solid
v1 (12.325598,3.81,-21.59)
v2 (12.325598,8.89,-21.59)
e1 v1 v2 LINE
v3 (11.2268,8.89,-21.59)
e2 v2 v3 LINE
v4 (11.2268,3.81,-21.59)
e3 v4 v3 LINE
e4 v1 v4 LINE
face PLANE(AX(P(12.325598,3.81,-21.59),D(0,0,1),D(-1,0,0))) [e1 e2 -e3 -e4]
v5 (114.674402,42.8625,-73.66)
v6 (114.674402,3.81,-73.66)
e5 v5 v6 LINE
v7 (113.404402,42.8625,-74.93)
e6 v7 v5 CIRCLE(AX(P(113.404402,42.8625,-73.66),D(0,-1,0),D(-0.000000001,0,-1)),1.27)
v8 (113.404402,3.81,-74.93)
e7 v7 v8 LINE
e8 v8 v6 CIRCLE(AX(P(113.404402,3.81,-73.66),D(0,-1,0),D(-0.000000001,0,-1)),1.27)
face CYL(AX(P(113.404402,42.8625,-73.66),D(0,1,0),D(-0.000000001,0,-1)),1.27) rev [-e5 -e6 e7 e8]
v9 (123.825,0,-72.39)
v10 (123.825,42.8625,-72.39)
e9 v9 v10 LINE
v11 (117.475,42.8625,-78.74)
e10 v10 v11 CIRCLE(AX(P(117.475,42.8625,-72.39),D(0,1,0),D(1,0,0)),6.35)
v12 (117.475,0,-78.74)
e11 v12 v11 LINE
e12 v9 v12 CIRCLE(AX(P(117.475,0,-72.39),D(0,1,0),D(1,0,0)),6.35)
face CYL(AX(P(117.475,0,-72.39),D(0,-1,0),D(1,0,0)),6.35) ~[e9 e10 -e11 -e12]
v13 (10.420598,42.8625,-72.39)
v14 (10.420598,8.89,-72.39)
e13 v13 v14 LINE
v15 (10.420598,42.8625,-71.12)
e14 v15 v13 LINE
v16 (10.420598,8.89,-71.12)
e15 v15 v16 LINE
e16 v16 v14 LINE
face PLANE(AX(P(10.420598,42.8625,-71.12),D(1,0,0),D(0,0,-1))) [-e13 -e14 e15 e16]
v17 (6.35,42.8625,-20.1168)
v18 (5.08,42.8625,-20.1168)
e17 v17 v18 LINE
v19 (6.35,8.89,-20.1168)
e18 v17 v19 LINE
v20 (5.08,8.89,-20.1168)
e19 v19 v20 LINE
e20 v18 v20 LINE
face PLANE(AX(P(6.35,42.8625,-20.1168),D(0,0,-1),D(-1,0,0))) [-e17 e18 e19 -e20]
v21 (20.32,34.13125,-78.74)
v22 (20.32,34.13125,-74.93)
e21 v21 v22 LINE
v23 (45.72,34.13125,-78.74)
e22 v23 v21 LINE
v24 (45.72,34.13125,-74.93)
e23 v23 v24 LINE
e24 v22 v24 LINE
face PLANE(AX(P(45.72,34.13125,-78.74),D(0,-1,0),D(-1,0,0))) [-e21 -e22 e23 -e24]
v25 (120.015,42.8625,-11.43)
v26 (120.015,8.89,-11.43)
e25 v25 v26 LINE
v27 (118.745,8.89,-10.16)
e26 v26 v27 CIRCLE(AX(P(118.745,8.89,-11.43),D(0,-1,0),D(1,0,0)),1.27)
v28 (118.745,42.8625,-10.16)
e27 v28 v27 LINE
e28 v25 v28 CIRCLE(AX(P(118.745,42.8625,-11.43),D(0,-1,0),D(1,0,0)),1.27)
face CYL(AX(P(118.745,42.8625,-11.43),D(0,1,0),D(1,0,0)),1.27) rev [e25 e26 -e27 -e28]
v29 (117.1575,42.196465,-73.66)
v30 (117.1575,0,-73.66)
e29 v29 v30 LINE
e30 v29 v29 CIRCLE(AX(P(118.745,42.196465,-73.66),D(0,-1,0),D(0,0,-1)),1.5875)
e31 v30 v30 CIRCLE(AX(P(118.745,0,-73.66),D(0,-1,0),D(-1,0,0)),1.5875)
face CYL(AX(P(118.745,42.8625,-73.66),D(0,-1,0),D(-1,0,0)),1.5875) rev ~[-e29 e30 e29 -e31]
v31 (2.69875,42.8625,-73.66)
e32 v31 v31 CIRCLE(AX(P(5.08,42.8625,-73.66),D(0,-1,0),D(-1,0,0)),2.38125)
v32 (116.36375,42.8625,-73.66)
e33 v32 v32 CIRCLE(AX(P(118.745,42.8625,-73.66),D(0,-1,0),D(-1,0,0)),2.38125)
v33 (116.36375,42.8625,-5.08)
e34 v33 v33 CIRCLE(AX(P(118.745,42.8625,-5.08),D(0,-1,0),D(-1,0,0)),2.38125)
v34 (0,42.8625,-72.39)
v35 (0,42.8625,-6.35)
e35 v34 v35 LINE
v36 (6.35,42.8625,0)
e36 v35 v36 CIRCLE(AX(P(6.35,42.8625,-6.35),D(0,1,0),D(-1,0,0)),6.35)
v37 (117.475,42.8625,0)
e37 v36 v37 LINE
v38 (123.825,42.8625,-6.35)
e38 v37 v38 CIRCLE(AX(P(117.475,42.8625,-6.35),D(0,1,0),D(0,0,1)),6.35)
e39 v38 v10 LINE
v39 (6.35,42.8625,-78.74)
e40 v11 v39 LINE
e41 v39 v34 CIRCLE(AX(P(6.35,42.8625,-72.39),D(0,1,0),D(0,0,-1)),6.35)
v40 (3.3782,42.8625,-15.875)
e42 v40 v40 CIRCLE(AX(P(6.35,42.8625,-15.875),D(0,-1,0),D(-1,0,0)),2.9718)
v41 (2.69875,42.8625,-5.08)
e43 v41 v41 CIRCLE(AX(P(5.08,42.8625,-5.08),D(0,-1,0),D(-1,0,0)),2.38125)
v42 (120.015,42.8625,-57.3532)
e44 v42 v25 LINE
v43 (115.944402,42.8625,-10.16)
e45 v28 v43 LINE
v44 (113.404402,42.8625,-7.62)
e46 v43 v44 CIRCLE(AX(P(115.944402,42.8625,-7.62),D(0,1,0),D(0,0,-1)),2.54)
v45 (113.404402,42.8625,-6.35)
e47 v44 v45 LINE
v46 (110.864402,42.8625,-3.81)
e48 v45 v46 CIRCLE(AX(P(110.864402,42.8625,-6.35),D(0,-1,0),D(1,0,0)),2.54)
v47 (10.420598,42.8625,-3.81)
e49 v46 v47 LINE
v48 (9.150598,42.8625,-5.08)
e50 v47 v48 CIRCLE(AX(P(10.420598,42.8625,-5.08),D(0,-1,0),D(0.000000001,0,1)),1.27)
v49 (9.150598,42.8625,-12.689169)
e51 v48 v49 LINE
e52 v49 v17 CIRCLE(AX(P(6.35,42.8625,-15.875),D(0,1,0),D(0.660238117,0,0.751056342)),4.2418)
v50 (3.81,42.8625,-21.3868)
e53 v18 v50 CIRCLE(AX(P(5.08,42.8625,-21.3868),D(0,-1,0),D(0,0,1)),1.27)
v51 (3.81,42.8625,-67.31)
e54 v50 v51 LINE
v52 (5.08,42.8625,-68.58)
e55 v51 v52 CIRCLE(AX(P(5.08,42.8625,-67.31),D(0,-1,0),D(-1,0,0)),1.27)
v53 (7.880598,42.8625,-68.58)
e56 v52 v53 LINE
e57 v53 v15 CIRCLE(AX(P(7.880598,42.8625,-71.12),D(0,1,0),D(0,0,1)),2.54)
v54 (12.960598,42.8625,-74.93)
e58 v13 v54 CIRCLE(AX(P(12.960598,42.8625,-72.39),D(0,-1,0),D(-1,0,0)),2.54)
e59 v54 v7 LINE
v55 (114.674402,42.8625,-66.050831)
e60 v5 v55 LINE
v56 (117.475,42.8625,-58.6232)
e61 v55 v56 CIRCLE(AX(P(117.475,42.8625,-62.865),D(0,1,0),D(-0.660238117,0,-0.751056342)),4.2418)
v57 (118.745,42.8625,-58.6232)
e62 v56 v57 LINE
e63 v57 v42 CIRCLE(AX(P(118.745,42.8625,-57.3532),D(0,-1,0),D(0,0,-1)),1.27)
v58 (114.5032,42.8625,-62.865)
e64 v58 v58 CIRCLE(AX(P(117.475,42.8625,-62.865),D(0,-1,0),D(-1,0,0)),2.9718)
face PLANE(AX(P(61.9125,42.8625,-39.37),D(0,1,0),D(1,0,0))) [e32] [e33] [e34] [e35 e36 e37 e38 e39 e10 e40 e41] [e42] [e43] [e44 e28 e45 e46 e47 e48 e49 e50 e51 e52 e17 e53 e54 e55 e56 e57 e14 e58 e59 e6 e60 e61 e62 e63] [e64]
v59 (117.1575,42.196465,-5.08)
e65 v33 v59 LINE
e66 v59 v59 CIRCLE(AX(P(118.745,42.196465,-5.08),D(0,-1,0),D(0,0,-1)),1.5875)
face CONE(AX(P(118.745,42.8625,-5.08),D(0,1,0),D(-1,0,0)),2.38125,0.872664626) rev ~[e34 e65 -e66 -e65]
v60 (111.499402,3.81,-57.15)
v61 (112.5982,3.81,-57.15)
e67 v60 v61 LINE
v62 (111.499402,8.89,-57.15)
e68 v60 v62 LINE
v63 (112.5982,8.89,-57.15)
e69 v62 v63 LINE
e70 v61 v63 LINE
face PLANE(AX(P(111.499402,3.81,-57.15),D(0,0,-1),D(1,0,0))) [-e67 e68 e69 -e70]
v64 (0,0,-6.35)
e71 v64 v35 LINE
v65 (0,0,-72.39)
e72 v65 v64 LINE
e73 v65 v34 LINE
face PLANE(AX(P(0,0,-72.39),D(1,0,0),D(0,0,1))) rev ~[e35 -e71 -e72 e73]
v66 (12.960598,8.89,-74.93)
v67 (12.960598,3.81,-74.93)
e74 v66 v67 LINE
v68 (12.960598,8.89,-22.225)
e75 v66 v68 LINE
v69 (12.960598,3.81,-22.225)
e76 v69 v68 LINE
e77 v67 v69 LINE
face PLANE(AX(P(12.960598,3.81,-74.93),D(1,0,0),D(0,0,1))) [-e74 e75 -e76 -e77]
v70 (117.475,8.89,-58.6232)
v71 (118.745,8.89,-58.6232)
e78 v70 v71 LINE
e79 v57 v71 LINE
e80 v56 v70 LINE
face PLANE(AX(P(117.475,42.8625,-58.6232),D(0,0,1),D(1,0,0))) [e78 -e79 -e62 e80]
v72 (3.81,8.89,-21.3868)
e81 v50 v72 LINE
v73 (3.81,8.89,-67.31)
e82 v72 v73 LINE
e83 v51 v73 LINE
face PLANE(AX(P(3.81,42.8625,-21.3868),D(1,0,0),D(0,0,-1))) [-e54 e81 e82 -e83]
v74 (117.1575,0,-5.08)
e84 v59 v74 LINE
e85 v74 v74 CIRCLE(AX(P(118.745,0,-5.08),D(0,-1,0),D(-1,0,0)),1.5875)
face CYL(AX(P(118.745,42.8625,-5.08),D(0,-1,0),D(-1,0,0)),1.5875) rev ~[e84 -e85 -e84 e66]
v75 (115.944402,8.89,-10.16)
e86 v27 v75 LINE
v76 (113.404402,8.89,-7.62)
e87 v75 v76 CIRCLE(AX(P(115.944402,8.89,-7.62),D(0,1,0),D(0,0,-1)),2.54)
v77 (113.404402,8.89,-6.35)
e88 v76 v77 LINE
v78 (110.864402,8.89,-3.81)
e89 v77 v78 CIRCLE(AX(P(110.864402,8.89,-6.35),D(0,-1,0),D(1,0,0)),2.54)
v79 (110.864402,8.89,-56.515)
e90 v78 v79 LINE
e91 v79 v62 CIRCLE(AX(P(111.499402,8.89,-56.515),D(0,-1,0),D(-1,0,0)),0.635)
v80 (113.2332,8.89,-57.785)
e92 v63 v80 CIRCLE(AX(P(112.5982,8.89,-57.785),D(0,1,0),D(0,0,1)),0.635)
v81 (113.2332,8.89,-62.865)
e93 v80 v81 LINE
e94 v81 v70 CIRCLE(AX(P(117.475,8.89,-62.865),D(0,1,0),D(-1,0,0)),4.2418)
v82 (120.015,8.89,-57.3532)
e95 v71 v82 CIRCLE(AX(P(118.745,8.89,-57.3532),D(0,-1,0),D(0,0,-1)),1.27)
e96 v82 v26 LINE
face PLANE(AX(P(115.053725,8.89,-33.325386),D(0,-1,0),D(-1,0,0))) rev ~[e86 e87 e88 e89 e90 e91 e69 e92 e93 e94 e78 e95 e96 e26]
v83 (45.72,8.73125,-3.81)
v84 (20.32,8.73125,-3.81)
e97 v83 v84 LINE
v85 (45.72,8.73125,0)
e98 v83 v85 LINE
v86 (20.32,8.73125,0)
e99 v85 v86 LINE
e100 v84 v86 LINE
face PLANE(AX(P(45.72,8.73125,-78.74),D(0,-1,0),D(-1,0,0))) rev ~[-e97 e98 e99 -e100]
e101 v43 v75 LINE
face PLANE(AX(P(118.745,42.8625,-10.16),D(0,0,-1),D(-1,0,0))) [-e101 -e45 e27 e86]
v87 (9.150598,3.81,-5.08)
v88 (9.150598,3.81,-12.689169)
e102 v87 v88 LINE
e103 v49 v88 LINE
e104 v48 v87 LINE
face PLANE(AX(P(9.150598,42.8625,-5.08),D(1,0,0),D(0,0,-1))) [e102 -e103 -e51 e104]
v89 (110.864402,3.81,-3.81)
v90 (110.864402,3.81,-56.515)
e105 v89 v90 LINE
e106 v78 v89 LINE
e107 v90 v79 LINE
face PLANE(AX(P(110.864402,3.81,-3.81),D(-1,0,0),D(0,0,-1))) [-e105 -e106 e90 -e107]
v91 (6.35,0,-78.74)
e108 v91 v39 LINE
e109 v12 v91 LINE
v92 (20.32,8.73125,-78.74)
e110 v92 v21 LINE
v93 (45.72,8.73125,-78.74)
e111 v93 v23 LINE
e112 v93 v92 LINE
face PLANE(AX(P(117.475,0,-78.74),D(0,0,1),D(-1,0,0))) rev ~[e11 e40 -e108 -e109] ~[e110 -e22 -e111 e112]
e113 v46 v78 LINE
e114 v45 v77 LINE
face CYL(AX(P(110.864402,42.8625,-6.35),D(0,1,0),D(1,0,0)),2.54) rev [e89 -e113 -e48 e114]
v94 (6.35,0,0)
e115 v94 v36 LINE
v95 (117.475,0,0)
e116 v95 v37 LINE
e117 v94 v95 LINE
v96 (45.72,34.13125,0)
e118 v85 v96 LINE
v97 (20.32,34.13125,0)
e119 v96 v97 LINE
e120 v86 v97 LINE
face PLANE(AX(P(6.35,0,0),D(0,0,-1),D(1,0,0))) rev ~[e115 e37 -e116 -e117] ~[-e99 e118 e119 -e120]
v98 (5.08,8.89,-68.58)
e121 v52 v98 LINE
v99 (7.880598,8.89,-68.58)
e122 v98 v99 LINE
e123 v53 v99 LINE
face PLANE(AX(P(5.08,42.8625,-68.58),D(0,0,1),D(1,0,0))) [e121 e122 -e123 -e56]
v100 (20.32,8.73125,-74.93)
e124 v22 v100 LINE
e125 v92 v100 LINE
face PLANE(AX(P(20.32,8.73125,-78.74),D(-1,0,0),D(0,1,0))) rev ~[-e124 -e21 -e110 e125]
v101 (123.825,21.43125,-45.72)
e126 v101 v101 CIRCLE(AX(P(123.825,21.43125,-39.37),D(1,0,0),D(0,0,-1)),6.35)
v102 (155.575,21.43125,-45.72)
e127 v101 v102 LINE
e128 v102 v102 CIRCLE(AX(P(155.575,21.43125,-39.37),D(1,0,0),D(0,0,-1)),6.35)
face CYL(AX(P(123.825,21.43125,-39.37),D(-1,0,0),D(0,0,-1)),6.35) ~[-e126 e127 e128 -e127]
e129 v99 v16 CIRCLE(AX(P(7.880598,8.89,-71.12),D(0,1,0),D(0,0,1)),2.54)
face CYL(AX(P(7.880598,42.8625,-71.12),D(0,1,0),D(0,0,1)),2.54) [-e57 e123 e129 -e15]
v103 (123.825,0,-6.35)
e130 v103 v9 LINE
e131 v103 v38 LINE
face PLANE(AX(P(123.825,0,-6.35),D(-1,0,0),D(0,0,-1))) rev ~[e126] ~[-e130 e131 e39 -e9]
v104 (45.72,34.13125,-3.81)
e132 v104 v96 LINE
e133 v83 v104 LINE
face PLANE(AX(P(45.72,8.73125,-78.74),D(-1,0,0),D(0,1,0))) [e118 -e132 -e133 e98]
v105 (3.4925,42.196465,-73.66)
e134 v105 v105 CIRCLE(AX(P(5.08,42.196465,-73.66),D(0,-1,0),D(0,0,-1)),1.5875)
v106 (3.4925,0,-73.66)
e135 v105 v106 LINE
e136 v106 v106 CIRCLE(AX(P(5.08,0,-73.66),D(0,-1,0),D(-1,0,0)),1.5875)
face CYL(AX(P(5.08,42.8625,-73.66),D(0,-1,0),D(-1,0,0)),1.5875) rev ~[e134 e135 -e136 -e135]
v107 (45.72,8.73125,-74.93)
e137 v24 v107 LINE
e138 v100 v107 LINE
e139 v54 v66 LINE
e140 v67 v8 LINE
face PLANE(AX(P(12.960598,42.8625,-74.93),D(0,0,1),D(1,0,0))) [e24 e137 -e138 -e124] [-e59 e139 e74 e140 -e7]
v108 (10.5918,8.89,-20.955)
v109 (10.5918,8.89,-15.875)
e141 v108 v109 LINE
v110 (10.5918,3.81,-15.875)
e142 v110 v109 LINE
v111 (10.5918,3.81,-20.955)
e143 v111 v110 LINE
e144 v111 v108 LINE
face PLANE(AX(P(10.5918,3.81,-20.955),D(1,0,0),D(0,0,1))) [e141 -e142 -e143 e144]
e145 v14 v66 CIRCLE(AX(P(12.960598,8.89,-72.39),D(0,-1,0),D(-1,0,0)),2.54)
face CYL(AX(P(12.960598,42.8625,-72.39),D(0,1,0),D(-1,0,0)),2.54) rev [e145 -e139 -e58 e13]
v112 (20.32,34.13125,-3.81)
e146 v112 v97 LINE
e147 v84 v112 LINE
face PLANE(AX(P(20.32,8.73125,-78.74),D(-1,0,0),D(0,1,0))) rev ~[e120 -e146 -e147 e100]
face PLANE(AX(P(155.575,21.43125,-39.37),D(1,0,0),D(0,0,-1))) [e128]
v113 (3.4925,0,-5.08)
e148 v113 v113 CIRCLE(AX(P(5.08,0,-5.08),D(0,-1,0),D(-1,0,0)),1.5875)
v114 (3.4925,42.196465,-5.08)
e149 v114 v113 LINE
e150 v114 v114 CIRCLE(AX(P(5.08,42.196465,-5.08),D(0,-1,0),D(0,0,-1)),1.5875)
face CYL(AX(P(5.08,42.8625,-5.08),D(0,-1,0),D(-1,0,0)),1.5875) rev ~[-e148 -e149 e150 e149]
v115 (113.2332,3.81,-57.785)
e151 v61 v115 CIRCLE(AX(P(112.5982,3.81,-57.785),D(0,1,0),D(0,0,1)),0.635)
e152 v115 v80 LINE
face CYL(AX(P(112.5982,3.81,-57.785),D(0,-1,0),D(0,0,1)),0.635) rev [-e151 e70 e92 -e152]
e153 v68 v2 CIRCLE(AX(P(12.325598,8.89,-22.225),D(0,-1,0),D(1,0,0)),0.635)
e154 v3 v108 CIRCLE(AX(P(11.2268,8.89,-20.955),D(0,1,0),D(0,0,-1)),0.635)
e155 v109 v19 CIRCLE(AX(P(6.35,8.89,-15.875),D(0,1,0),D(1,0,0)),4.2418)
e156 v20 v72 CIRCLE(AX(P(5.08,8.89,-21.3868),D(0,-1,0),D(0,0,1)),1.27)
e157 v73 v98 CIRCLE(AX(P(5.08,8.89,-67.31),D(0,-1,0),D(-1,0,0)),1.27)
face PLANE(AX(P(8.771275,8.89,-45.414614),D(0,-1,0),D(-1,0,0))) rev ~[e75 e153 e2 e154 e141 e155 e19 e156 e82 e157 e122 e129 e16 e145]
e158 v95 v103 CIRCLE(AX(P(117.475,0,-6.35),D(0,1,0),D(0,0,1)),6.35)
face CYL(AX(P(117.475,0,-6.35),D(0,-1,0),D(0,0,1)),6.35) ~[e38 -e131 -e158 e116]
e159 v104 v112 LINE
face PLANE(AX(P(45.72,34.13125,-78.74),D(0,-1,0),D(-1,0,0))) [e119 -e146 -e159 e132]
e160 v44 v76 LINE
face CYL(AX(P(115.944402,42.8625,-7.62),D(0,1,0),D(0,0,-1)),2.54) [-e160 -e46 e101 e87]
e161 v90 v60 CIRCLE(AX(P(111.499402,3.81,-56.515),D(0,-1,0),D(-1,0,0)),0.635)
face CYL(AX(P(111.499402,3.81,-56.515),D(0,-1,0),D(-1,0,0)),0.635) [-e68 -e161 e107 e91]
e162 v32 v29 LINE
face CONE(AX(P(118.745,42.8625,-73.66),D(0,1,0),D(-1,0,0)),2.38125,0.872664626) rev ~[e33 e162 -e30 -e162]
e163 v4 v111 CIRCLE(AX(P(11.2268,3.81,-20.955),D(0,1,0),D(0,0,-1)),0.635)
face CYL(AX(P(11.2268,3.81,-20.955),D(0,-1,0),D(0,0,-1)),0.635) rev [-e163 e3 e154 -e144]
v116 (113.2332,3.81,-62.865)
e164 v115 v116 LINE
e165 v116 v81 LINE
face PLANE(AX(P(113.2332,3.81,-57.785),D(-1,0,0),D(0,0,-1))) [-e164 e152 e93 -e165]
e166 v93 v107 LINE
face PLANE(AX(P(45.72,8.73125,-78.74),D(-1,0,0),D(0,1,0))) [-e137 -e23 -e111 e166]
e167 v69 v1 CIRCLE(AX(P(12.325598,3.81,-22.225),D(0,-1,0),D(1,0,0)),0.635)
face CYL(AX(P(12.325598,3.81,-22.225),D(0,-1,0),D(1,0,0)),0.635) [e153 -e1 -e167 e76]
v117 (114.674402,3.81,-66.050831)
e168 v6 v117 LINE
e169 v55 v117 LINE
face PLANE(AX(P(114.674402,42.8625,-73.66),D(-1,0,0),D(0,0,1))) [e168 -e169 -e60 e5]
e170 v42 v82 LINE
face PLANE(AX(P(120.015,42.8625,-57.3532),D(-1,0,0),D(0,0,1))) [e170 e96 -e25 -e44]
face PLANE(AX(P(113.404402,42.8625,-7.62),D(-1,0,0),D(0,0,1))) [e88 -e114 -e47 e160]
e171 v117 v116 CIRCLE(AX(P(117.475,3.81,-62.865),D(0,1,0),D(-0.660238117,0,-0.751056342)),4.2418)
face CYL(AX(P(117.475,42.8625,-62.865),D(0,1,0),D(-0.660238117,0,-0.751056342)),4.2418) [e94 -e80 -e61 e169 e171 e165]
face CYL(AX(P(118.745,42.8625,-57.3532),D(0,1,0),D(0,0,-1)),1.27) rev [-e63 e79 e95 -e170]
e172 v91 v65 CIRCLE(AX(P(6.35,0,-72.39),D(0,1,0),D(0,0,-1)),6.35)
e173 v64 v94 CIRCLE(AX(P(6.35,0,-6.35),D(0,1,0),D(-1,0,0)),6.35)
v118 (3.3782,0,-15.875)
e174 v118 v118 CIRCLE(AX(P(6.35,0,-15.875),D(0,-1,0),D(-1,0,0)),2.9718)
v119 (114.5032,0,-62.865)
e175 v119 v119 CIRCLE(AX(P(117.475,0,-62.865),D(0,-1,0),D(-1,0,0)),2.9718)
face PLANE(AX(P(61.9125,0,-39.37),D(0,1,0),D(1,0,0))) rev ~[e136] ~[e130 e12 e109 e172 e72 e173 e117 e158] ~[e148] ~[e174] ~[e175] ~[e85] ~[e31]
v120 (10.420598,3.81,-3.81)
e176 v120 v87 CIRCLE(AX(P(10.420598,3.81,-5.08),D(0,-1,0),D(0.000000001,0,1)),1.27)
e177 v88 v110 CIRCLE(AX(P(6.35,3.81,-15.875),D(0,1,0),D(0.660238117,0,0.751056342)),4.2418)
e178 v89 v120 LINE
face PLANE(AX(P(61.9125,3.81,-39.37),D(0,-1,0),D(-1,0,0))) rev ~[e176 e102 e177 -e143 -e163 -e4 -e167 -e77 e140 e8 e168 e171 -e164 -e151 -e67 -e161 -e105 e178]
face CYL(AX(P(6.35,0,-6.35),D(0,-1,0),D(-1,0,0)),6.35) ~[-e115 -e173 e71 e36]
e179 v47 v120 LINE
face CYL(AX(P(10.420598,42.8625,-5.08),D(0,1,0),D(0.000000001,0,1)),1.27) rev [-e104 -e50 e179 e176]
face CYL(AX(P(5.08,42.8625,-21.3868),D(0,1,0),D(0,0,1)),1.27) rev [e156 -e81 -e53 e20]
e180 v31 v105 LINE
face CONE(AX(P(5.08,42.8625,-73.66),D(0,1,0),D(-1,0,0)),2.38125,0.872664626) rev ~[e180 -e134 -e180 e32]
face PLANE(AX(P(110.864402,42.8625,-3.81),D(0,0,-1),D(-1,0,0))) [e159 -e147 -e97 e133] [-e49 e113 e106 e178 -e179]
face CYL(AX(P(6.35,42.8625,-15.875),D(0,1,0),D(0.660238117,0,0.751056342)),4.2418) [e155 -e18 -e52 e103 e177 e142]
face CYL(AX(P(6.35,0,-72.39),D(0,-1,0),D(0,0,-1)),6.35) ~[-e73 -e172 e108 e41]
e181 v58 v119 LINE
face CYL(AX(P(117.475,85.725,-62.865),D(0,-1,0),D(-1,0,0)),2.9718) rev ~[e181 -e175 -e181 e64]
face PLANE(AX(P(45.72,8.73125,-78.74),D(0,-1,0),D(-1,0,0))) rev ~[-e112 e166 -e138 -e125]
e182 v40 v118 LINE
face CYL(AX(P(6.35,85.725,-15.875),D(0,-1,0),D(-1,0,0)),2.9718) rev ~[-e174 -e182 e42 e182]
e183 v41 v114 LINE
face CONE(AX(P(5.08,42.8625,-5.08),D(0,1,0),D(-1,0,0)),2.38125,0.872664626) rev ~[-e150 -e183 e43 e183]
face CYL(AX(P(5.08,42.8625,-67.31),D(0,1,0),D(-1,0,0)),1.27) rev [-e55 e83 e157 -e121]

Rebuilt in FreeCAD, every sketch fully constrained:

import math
import FreeCAD as App
import Part
import Sketcher
from FreeCAD import Vector
Q = App.Units.Quantity


def add_polygon(sketch, points):
    """Adds a closed chain of lines whose ends are joined by coincident constraints."""
    first, n = sketch.GeometryCount, len(points)
    for a, b in zip(points, points[1:] + points[:1]):
        sketch.addGeometry(Part.LineSegment(App.Vector(*a, 0), App.Vector(*b, 0)), False)
    for i in range(n):
        sketch.addConstraint(Sketcher.Constraint("Coincident", first + i, 2, first + (i + 1) % n, 1))

doc = App.newDocument("Part")
body = doc.addObject("PartDesign::Body", "Body")

# Sketch on XZ plane
sketch1 = doc.addObject("Sketcher::SketchObject", "Sketch")
body.addObject(sketch1)
sketch1.AttachmentSupport = (doc.XZ_Plane, [""])
sketch1.MapMode = "FlatFace"
sketch1.addGeometry([
    Part.LineSegment(Vector(6, 0, 0), Vector(117, 0, 0)),  # 0
    Part.ArcOfCircle(Part.Circle(Vector(117, -6, 0), Vector(0, 0, 1), 6), math.radians(0), math.radians(90)),  # 1
    Part.LineSegment(Vector(124, -6, 0), Vector(124, -72, 0)),  # 2
    Part.ArcOfCircle(Part.Circle(Vector(117, -72, 0), Vector(0, 0, 1), 6), math.radians(-90), math.radians(0)),  # 3
    Part.LineSegment(Vector(117, -79, 0), Vector(6, -79, 0)),  # 4
    Part.ArcOfCircle(Part.Circle(Vector(6, -72, 0), Vector(0, 0, 1), 6), math.radians(180), math.radians(270)),  # 5
    Part.LineSegment(Vector(0, -72, 0), Vector(0, -6, 0)),  # 6
    Part.ArcOfCircle(Part.Circle(Vector(6, -6, 0), Vector(0, 0, 1), 6), math.radians(90), math.radians(180)),  # 7
], False)
sketch1.addConstraint([
    Sketcher.Constraint("Tangent", 0, 2, 1, 2),
    Sketcher.Constraint("Tangent", 1, 1, 2, 1),
    Sketcher.Constraint("Tangent", 2, 2, 3, 2),
    Sketcher.Constraint("Tangent", 3, 1, 4, 1),
    Sketcher.Constraint("Tangent", 4, 2, 5, 2),
    Sketcher.Constraint("Tangent", 5, 1, 6, 1),
    Sketcher.Constraint("Tangent", 6, 2, 7, 2),
    Sketcher.Constraint("Tangent", 7, 1, 0, 1),
    Sketcher.Constraint("Horizontal", 0),
    Sketcher.Constraint("Vertical", 2),
    Sketcher.Constraint("Horizontal", 4),
    Sketcher.Constraint("Vertical", 6),
    Sketcher.Constraint("Equal", 1, 3),
    Sketcher.Constraint("Equal", 3, 5),
    Sketcher.Constraint("Equal", 5, 7),
    Sketcher.Constraint("PointOnObject", 0, 2, -1),
    Sketcher.Constraint("PointOnObject", 5, 1, -2),
    Sketcher.Constraint("Radius", 1, Q("0.25 in")),
    Sketcher.Constraint("DistanceY", 2, 2, 2, 1, Q("2.6 in")),
    Sketcher.Constraint("DistanceX", 0, 1, 0, 2, Q("4.375 in")),
])
pad1 = doc.addObject("PartDesign::Pad", "Pad")
body.addObject(pad1)
pad1.Profile = sketch1
pad1.Length = Q("1.6875 in")
pad1.Reversed = True

# Sketch on XZ plane
sketch2 = doc.addObject("Sketcher::SketchObject", "Sketch001")
body.addObject(sketch2)
sketch2.AttachmentSupport = (doc.XZ_Plane, [""])
sketch2.MapMode = "FlatFace"
sketch2.AttachmentOffset = App.Placement(Vector(0, 0, -1.6875 * 25.4), App.Rotation())
sketch2.addGeometry([
    Part.Circle(Vector(5.1, -5.1, 0), Vector(0, 0, 1), 1.6),
    Part.Circle(Vector(5.1, -73.7, 0), Vector(0, 0, 1), 1.6),
    Part.Circle(Vector(118.7, -73.7, 0), Vector(0, 0, 1), 1.6),
    Part.Circle(Vector(118.7, -5.1, 0), Vector(0, 0, 1), 1.6),
], False)
sketch2.addConstraint([
    Sketcher.Constraint("Equal", 0, 1),
    Sketcher.Constraint("Equal", 1, 2),
    Sketcher.Constraint("Equal", 2, 3),
    Sketcher.Constraint("Horizontal", 1, 3, 2, 3),
    Sketcher.Constraint("Horizontal", 0, 3, 3, 3),
    Sketcher.Constraint("Vertical", 0, 3, 1, 3),
    Sketcher.Constraint("Vertical", 2, 3, 3, 3),
    Sketcher.Constraint("Diameter", 0, Q("0.125 in")),
    Sketcher.Constraint("DistanceX", -1, 1, 0, 3, Q("0.2 in")),
    Sketcher.Constraint("DistanceY", 0, 3, -1, 1, Q("0.2 in")),
    Sketcher.Constraint("DistanceY", 1, 3, -1, 1, Q("2.9 in")),
    Sketcher.Constraint("DistanceX", -1, 1, 2, 3, Q("4.675 in")),
])
doc.recompute()
hole = doc.addObject("PartDesign::Hole", "Hole")
body.addObject(hole)
hole.Profile = sketch2
hole.ThreadType = "None"
hole.Diameter = Q("0.125 in")
hole.DepthType = "ThroughAll"
hole.HoleCutType = "Countersink"
hole.HoleCutDiameter = Q("0.1875 in")
hole.HoleCutCountersinkAngle = 100
hole.Reversed = True

# Sketch on XZ plane
sketch3 = doc.addObject("Sketcher::SketchObject", "Sketch002")
body.addObject(sketch3)
sketch3.AttachmentSupport = (doc.XZ_Plane, [""])
sketch3.MapMode = "FlatFace"
sketch3.AttachmentOffset = App.Placement(Vector(0, 0, -1.6875 * 25.4), App.Rotation())
sketch3.addGeometry([
    Part.Circle(Vector(6.3, -15.9, 0), Vector(0, 0, 1), 3),
    Part.Circle(Vector(117.5, -62.9, 0), Vector(0, 0, 1), 3),
], False)
sketch3.addConstraint([
    Sketcher.Constraint("Equal", 0, 1),
    Sketcher.Constraint("Diameter", 0, Q("0.234 in")),
    Sketcher.Constraint("DistanceX", -1, 1, 0, 3, Q("0.25 in")),
    Sketcher.Constraint("DistanceY", 1, 3, 0, 3, Q("1.85 in")),
    Sketcher.Constraint("DistanceY", 0, 3, -1, 1, Q("0.625 in")),
    Sketcher.Constraint("DistanceX", -1, 1, 1, 3, Q("4.625 in")),
])
doc.recompute()
hole2 = doc.addObject("PartDesign::Hole", "Hole001")
body.addObject(hole2)
hole2.Profile = sketch3
hole2.ThreadType = "None"
hole2.Diameter = Q("0.234 in")
hole2.DepthType = "Dimension"
hole2.Depth = Q("1.6875 in")
hole2.DrillPoint = "Flat"
hole2.Reversed = True

# Sketch on XZ plane
sketch4 = doc.addObject("Sketcher::SketchObject", "Sketch003")
body.addObject(sketch4)
sketch4.AttachmentSupport = (doc.XZ_Plane, [""])
sketch4.MapMode = "FlatFace"
sketch4.AttachmentOffset = App.Placement(Vector(0, 0, -1.6875 * 25.4), App.Rotation())
sketch4.addGeometry([
    Part.LineSegment(Vector(7.9, -68.6, 0), Vector(5.1, -68.6, 0)),  # 0
    Part.ArcOfCircle(Part.Circle(Vector(5.1, -67.3, 0), Vector(0, 0, 1), 1.3), math.radians(180), math.radians(270)),  # 1
    Part.LineSegment(Vector(3.8, -67.3, 0), Vector(3.8, -21.4, 0)),  # 2
    Part.ArcOfCircle(Part.Circle(Vector(5.1, -21.4, 0), Vector(0, 0, 1), 1.3), math.radians(90), math.radians(180)),  # 3
    Part.LineSegment(Vector(5.1, -20.1, 0), Vector(6.3, -20.1, 0)),  # 4
    Part.ArcOfCircle(Part.Circle(Vector(6.3, -15.9, 0), Vector(0, 0, 1), 4.2), math.radians(-90), math.radians(49)),  # 5
    Part.LineSegment(Vector(9.2, -12.7, 0), Vector(9.2, -5.1, 0)),  # 6
    Part.ArcOfCircle(Part.Circle(Vector(10.4, -5.1, 0), Vector(0, 0, 1), 1.3), math.radians(90), math.radians(180)),  # 7
    Part.LineSegment(Vector(10.4, -3.8, 0), Vector(110.9, -3.8, 0)),  # 8
    Part.ArcOfCircle(Part.Circle(Vector(110.9, -6.3, 0), Vector(0, 0, 1), 2.5), math.radians(0), math.radians(90)),  # 9
    Part.LineSegment(Vector(113.4, -6.3, 0), Vector(113.4, -7.6, 0)),  # 10
    Part.ArcOfCircle(Part.Circle(Vector(115.9, -7.6, 0), Vector(0, 0, 1), 2.5), math.radians(-180), math.radians(-90)),  # 11
    Part.LineSegment(Vector(115.9, -10.2, 0), Vector(118.7, -10.2, 0)),  # 12
    Part.ArcOfCircle(Part.Circle(Vector(118.7, -11.4, 0), Vector(0, 0, 1), 1.3), math.radians(0), math.radians(90)),  # 13
    Part.LineSegment(Vector(120, -11.4, 0), Vector(120, -57.4, 0)),  # 14
    Part.ArcOfCircle(Part.Circle(Vector(118.7, -57.4, 0), Vector(0, 0, 1), 1.3), math.radians(-90), math.radians(0)),  # 15
    Part.LineSegment(Vector(118.7, -58.6, 0), Vector(117.5, -58.6, 0)),  # 16
    Part.ArcOfCircle(Part.Circle(Vector(117.5, -62.9, 0), Vector(0, 0, 1), 4.2), math.radians(90), math.radians(229)),  # 17
    Part.LineSegment(Vector(114.7, -66.1, 0), Vector(114.7, -73.7, 0)),  # 18
    Part.ArcOfCircle(Part.Circle(Vector(113.4, -73.7, 0), Vector(0, 0, 1), 1.3), math.radians(-90), math.radians(0)),  # 19
    Part.LineSegment(Vector(113.4, -74.9, 0), Vector(13, -74.9, 0)),  # 20
    Part.ArcOfCircle(Part.Circle(Vector(13, -72.4, 0), Vector(0, 0, 1), 2.5), math.radians(180), math.radians(270)),  # 21
    Part.LineSegment(Vector(10.4, -72.4, 0), Vector(10.4, -71.1, 0)),  # 22
    Part.ArcOfCircle(Part.Circle(Vector(7.9, -71.1, 0), Vector(0, 0, 1), 2.5), math.radians(0), math.radians(90)),  # 23
], False)
sketch4.addConstraint([
    Sketcher.Constraint("Tangent", 0, 2, 1, 2),
    Sketcher.Constraint("Tangent", 1, 1, 2, 1),
    Sketcher.Constraint("Tangent", 2, 2, 3, 2),
    Sketcher.Constraint("Tangent", 3, 1, 4, 1),
    Sketcher.Constraint("Tangent", 4, 2, 5, 1),
    Sketcher.Constraint("Coincident", 5, 2, 6, 1),
    Sketcher.Constraint("Tangent", 6, 2, 7, 2),
    Sketcher.Constraint("Tangent", 7, 1, 8, 1),
    Sketcher.Constraint("Tangent", 8, 2, 9, 2),
    Sketcher.Constraint("Tangent", 9, 1, 10, 1),
    Sketcher.Constraint("Tangent", 10, 2, 11, 1),
    Sketcher.Constraint("Tangent", 11, 2, 12, 1),
    Sketcher.Constraint("Tangent", 12, 2, 13, 2),
    Sketcher.Constraint("Tangent", 13, 1, 14, 1),
    Sketcher.Constraint("Tangent", 14, 2, 15, 2),
    Sketcher.Constraint("Tangent", 15, 1, 16, 1),
    Sketcher.Constraint("Tangent", 16, 2, 17, 1),
    Sketcher.Constraint("Coincident", 17, 2, 18, 1),
    Sketcher.Constraint("Tangent", 18, 2, 19, 2),
    Sketcher.Constraint("Tangent", 19, 1, 20, 1),
    Sketcher.Constraint("Tangent", 20, 2, 21, 2),
    Sketcher.Constraint("Tangent", 21, 1, 22, 1),
    Sketcher.Constraint("Tangent", 22, 2, 23, 1),
    Sketcher.Constraint("Tangent", 23, 2, 0, 1),
    Sketcher.Constraint("Horizontal", 0),
    Sketcher.Constraint("Vertical", 2),
    Sketcher.Constraint("Horizontal", 4),
    Sketcher.Constraint("Vertical", 6),
    Sketcher.Constraint("Horizontal", 8),
    Sketcher.Constraint("Vertical", 10),
    Sketcher.Constraint("Horizontal", 12),
    Sketcher.Constraint("Vertical", 14),
    Sketcher.Constraint("Horizontal", 16),
    Sketcher.Constraint("Vertical", 18),
    Sketcher.Constraint("Horizontal", 20),
    Sketcher.Constraint("Vertical", 22),
    Sketcher.Constraint("Equal", 1, 3),
    Sketcher.Constraint("Equal", 3, 7),
    Sketcher.Constraint("Equal", 9, 11),
    Sketcher.Constraint("Equal", 7, 13),
    Sketcher.Constraint("Equal", 13, 15),
    Sketcher.Constraint("Equal", 5, 17),
    Sketcher.Constraint("Equal", 15, 19),
    Sketcher.Constraint("Equal", 11, 21),
    Sketcher.Constraint("Equal", 21, 23),
    Sketcher.Constraint("Vertical", 19, 3, 9, 1),
    Sketcher.Constraint("Vertical", 7, 1, 21, 1),
    Sketcher.Constraint("Equal", 0, 12),
    Sketcher.Constraint("Equal", 4, 16),
    Sketcher.Constraint("Equal", 16, 10),
    Sketcher.Constraint("Equal", 2, 14),
    Sketcher.Constraint("Equal", 6, 18),
    Sketcher.Constraint("Radius", 9, Q("0.1 in")),
    Sketcher.Constraint("Radius", 1, Q("0.05 in")),
    Sketcher.Constraint("Radius", 5, Q("0.167 in")),
    Sketcher.Constraint("DistanceX", 4, 1, 4, 2, Q("0.05 in")),
    Sketcher.Constraint("DistanceX", -1, 1, 1, 3, Q("0.2 in")),
    Sketcher.Constraint("DistanceY", 7, 3, -1, 1, Q("0.2 in")),
    Sketcher.Constraint("DistanceY", 19, 3, -1, 1, Q("2.9 in")),
    Sketcher.Constraint("DistanceY", 2, 1, 2, 2, Q("1.808 in")),
    Sketcher.Constraint("DistanceX", -1, 1, 13, 3, Q("4.675 in")),
    Sketcher.Constraint("DistanceX", 0, 2, 0, 1, Q("2.800598 mm")),
])
pocket1 = doc.addObject("PartDesign::Pocket", "Pocket")
body.addObject(pocket1)
pocket1.Profile = sketch4
pocket1.Length = Q("1.5375 in")
pocket1.Reversed = True

# Sketch on XZ plane
sketch5 = doc.addObject("Sketcher::SketchObject", "Sketch004")
body.addObject(sketch5)
sketch5.AttachmentSupport = (doc.XZ_Plane, [""])
sketch5.MapMode = "FlatFace"
sketch5.AttachmentOffset = App.Placement(Vector(0, 0, -0.15 * 25.4), App.Rotation())
sketch5.addGeometry([
    Part.LineSegment(Vector(13, -22.2, 0), Vector(13, -74.9, 0)),  # 0
    Part.ArcOfCircle(Part.Circle(Vector(13, -72.4, 0), Vector(0, 0, 1), 2.5), math.radians(180), math.radians(270)),  # 1
    Part.LineSegment(Vector(10.4, -72.4, 0), Vector(10.4, -71.1, 0)),  # 2
    Part.ArcOfCircle(Part.Circle(Vector(7.9, -71.1, 0), Vector(0, 0, 1), 2.5), math.radians(0), math.radians(90)),  # 3
    Part.LineSegment(Vector(7.9, -68.6, 0), Vector(5.1, -68.6, 0)),  # 4
    Part.ArcOfCircle(Part.Circle(Vector(5.1, -67.3, 0), Vector(0, 0, 1), 1.3), math.radians(180), math.radians(270)),  # 5
    Part.LineSegment(Vector(3.8, -67.3, 0), Vector(3.8, -21.4, 0)),  # 6
    Part.ArcOfCircle(Part.Circle(Vector(5.1, -21.4, 0), Vector(0, 0, 1), 1.3), math.radians(90), math.radians(180)),  # 7
    Part.LineSegment(Vector(5.1, -20.1, 0), Vector(6.3, -20.1, 0)),  # 8
    Part.ArcOfCircle(Part.Circle(Vector(6.3, -15.9, 0), Vector(0, 0, 1), 4.2), math.radians(-90), math.radians(0)),  # 9
    Part.LineSegment(Vector(10.6, -15.9, 0), Vector(10.6, -21, 0)),  # 10
    Part.ArcOfCircle(Part.Circle(Vector(11.2, -21, 0), Vector(0, 0, 1), 0.6), math.radians(180), math.radians(270)),  # 11
    Part.LineSegment(Vector(11.2, -21.6, 0), Vector(12.3, -21.6, 0)),  # 12
    Part.ArcOfCircle(Part.Circle(Vector(12.3, -22.2, 0), Vector(0, 0, 1), 0.6), math.radians(0), math.radians(90)),  # 13
    Part.LineSegment(Vector(110.9, -56.5, 0), Vector(110.9, -3.8, 0)),  # 14
    Part.ArcOfCircle(Part.Circle(Vector(110.9, -6.3, 0), Vector(0, 0, 1), 2.5), math.radians(0), math.radians(90)),  # 15
    Part.LineSegment(Vector(113.4, -6.3, 0), Vector(113.4, -7.6, 0)),  # 16
    Part.ArcOfCircle(Part.Circle(Vector(115.9, -7.6, 0), Vector(0, 0, 1), 2.5), math.radians(-180), math.radians(-90)),  # 17
    Part.LineSegment(Vector(115.9, -10.2, 0), Vector(118.7, -10.2, 0)),  # 18
    Part.ArcOfCircle(Part.Circle(Vector(118.7, -11.4, 0), Vector(0, 0, 1), 1.3), math.radians(0), math.radians(90)),  # 19
    Part.LineSegment(Vector(120, -11.4, 0), Vector(120, -57.4, 0)),  # 20
    Part.ArcOfCircle(Part.Circle(Vector(118.7, -57.4, 0), Vector(0, 0, 1), 1.3), math.radians(-90), math.radians(0)),  # 21
    Part.LineSegment(Vector(118.7, -58.6, 0), Vector(117.5, -58.6, 0)),  # 22
    Part.ArcOfCircle(Part.Circle(Vector(117.5, -62.9, 0), Vector(0, 0, 1), 4.2), math.radians(90), math.radians(180)),  # 23
    Part.LineSegment(Vector(113.2, -62.9, 0), Vector(113.2, -57.8, 0)),  # 24
    Part.ArcOfCircle(Part.Circle(Vector(112.6, -57.8, 0), Vector(0, 0, 1), 0.6), math.radians(0), math.radians(90)),  # 25
    Part.LineSegment(Vector(112.6, -57.1, 0), Vector(111.5, -57.1, 0)),  # 26
    Part.ArcOfCircle(Part.Circle(Vector(111.5, -56.5, 0), Vector(0, 0, 1), 0.6), math.radians(180), math.radians(270)),  # 27
], False)
sketch5.addConstraint([
    Sketcher.Constraint("Coincident", 0, 2, 1, 2),
    Sketcher.Constraint("Tangent", 1, 1, 2, 1),
    Sketcher.Constraint("Tangent", 2, 2, 3, 1),
    Sketcher.Constraint("Tangent", 3, 2, 4, 1),
    Sketcher.Constraint("Tangent", 4, 2, 5, 2),
    Sketcher.Constraint("Tangent", 5, 1, 6, 1),
    Sketcher.Constraint("Tangent", 6, 2, 7, 2),
    Sketcher.Constraint("Tangent", 7, 1, 8, 1),
    Sketcher.Constraint("Tangent", 8, 2, 9, 1),
    Sketcher.Constraint("Tangent", 9, 2, 10, 1),
    Sketcher.Constraint("Tangent", 10, 2, 11, 1),
    Sketcher.Constraint("Tangent", 11, 2, 12, 1),
    Sketcher.Constraint("Tangent", 12, 2, 13, 2),
    Sketcher.Constraint("Tangent", 13, 1, 0, 1),
    Sketcher.Constraint("Coincident", 14, 2, 15, 2),
    Sketcher.Constraint("Tangent", 15, 1, 16, 1),
    Sketcher.Constraint("Tangent", 16, 2, 17, 1),
    Sketcher.Constraint("Tangent", 17, 2, 18, 1),
    Sketcher.Constraint("Tangent", 18, 2, 19, 2),
    Sketcher.Constraint("Tangent", 19, 1, 20, 1),
    Sketcher.Constraint("Tangent", 20, 2, 21, 2),
    Sketcher.Constraint("Tangent", 21, 1, 22, 1),
    Sketcher.Constraint("Tangent", 22, 2, 23, 1),
    Sketcher.Constraint("Tangent", 23, 2, 24, 1),
    Sketcher.Constraint("Tangent", 24, 2, 25, 1),
    Sketcher.Constraint("Tangent", 25, 2, 26, 1),
    Sketcher.Constraint("Tangent", 26, 2, 27, 2),
    Sketcher.Constraint("Tangent", 27, 1, 14, 1),
    Sketcher.Constraint("Vertical", 0),
    Sketcher.Constraint("Vertical", 2),
    Sketcher.Constraint("Horizontal", 4),
    Sketcher.Constraint("Vertical", 6),
    Sketcher.Constraint("Horizontal", 8),
    Sketcher.Constraint("Vertical", 10),
    Sketcher.Constraint("Horizontal", 12),
    Sketcher.Constraint("Vertical", 14),
    Sketcher.Constraint("Vertical", 16),
    Sketcher.Constraint("Horizontal", 18),
    Sketcher.Constraint("Vertical", 20),
    Sketcher.Constraint("Horizontal", 22),
    Sketcher.Constraint("Vertical", 24),
    Sketcher.Constraint("Horizontal", 26),
    Sketcher.Constraint("Equal", 1, 3),
    Sketcher.Constraint("Equal", 5, 7),
    Sketcher.Constraint("Equal", 11, 13),
    Sketcher.Constraint("Equal", 3, 15),
    Sketcher.Constraint("Equal", 15, 17),
    Sketcher.Constraint("Equal", 7, 19),
    Sketcher.Constraint("Equal", 19, 21),
    Sketcher.Constraint("Equal", 9, 23),
    Sketcher.Constraint("Equal", 13, 25),
    Sketcher.Constraint("Equal", 25, 27),
    Sketcher.Constraint("Vertical", 1, 3, 0, 2),
    Sketcher.Constraint("Vertical", 15, 3, 14, 2),
    Sketcher.Constraint("Equal", 4, 18),
    Sketcher.Constraint("Equal", 8, 22),
    Sketcher.Constraint("Equal", 22, 2),
    Sketcher.Constraint("Equal", 0, 14),
    Sketcher.Constraint("Equal", 2, 16),
    Sketcher.Constraint("Equal", 6, 20),
    Sketcher.Constraint("Radius", 1, Q("0.1 in")),
    Sketcher.Constraint("Radius", 5, Q("0.05 in")),
    Sketcher.Constraint("DistanceY", 10, 2, 10, 1, Q("0.2 in")),
    Sketcher.Constraint("Radius", 9, Q("0.167 in")),
    Sketcher.Constraint("Radius", 11, Q("0.025 in")),
    Sketcher.Constraint("DistanceX", 8, 1, 8, 2, Q("0.05 in")),
    Sketcher.Constraint("DistanceY", 3, 3, -1, 1, Q("2.8 in")),
    Sketcher.Constraint("DistanceX", -1, 1, 5, 3, Q("0.2 in")),
    Sketcher.Constraint("DistanceY", 17, 3, -1, 1, Q("0.3 in")),
    Sketcher.Constraint("DistanceY", 0, 2, 0, 1, Q("2.075 in")),
    Sketcher.Constraint("DistanceX", -1, 1, 19, 3, Q("4.675 in")),
    Sketcher.Constraint("DistanceX", 4, 2, 4, 1, Q("2.800598 mm")),
])
pad2 = doc.addObject("PartDesign::Pad", "Pad001")
body.addObject(pad2)
pad2.Profile = sketch5
pad2.Length = Q("0.2 in")
pad2.Reversed = True

# Sketch on XY plane
sketch6 = doc.addObject("Sketcher::SketchObject", "Sketch005")
body.addObject(sketch6)
sketch6.AttachmentSupport = (doc.XY_Plane, [""])
sketch6.MapMode = "FlatFace"
sketch6.AttachmentOffset = App.Placement(Vector(0, 0, -3.1 * 25.4), App.Rotation())
add_polygon(sketch6, [(46, 34), (46, 9), (20, 9), (20, 34)])  # lines 0-3
sketch6.addConstraint([
    Sketcher.Constraint("Vertical", 0),
    Sketcher.Constraint("Horizontal", 1),
    Sketcher.Constraint("Vertical", 2),
    Sketcher.Constraint("Horizontal", 3),
    Sketcher.Constraint("Equal", 3, 0),
    Sketcher.Constraint("DistanceX", 1, 2, 1, 1, Q("1 in")),
    Sketcher.Constraint("DistanceX", -1, 1, 0, 2, Q("1.8 in")),
    Sketcher.Constraint("DistanceY", -1, 1, 0, 2, Q("0.34375 in")),
])
pocket2 = doc.addObject("PartDesign::Pocket", "Pocket001")
body.addObject(pocket2)
pocket2.Profile = sketch6
pocket2.Type = "ThroughAll"
pocket2.Reversed = True

# Sketch on YZ plane
sketch7 = doc.addObject("Sketcher::SketchObject", "Sketch006")
body.addObject(sketch7)
sketch7.AttachmentSupport = (doc.YZ_Plane, [""])
sketch7.MapMode = "FlatFace"
sketch7.AttachmentOffset = App.Placement(Vector(0, 0, 4.875 * 25.4), App.Rotation())
sketch7.addGeometry(Part.Circle(Vector(21, -39, 0), Vector(0, 0, 1), 6), False)
sketch7.addConstraint([
    Sketcher.Constraint("Diameter", 0, Q("0.5 in")),
    Sketcher.Constraint("DistanceY", 0, 3, -1, 1, Q("1.55 in")),
    Sketcher.Constraint("DistanceX", -1, 1, 0, 3, Q("0.84375 in")),
])
pad3 = doc.addObject("PartDesign::Pad", "Pad002")
body.addObject(pad3)
pad3.Profile = sketch7
pad3.Length = Q("1.25 in")

doc.recompute()
